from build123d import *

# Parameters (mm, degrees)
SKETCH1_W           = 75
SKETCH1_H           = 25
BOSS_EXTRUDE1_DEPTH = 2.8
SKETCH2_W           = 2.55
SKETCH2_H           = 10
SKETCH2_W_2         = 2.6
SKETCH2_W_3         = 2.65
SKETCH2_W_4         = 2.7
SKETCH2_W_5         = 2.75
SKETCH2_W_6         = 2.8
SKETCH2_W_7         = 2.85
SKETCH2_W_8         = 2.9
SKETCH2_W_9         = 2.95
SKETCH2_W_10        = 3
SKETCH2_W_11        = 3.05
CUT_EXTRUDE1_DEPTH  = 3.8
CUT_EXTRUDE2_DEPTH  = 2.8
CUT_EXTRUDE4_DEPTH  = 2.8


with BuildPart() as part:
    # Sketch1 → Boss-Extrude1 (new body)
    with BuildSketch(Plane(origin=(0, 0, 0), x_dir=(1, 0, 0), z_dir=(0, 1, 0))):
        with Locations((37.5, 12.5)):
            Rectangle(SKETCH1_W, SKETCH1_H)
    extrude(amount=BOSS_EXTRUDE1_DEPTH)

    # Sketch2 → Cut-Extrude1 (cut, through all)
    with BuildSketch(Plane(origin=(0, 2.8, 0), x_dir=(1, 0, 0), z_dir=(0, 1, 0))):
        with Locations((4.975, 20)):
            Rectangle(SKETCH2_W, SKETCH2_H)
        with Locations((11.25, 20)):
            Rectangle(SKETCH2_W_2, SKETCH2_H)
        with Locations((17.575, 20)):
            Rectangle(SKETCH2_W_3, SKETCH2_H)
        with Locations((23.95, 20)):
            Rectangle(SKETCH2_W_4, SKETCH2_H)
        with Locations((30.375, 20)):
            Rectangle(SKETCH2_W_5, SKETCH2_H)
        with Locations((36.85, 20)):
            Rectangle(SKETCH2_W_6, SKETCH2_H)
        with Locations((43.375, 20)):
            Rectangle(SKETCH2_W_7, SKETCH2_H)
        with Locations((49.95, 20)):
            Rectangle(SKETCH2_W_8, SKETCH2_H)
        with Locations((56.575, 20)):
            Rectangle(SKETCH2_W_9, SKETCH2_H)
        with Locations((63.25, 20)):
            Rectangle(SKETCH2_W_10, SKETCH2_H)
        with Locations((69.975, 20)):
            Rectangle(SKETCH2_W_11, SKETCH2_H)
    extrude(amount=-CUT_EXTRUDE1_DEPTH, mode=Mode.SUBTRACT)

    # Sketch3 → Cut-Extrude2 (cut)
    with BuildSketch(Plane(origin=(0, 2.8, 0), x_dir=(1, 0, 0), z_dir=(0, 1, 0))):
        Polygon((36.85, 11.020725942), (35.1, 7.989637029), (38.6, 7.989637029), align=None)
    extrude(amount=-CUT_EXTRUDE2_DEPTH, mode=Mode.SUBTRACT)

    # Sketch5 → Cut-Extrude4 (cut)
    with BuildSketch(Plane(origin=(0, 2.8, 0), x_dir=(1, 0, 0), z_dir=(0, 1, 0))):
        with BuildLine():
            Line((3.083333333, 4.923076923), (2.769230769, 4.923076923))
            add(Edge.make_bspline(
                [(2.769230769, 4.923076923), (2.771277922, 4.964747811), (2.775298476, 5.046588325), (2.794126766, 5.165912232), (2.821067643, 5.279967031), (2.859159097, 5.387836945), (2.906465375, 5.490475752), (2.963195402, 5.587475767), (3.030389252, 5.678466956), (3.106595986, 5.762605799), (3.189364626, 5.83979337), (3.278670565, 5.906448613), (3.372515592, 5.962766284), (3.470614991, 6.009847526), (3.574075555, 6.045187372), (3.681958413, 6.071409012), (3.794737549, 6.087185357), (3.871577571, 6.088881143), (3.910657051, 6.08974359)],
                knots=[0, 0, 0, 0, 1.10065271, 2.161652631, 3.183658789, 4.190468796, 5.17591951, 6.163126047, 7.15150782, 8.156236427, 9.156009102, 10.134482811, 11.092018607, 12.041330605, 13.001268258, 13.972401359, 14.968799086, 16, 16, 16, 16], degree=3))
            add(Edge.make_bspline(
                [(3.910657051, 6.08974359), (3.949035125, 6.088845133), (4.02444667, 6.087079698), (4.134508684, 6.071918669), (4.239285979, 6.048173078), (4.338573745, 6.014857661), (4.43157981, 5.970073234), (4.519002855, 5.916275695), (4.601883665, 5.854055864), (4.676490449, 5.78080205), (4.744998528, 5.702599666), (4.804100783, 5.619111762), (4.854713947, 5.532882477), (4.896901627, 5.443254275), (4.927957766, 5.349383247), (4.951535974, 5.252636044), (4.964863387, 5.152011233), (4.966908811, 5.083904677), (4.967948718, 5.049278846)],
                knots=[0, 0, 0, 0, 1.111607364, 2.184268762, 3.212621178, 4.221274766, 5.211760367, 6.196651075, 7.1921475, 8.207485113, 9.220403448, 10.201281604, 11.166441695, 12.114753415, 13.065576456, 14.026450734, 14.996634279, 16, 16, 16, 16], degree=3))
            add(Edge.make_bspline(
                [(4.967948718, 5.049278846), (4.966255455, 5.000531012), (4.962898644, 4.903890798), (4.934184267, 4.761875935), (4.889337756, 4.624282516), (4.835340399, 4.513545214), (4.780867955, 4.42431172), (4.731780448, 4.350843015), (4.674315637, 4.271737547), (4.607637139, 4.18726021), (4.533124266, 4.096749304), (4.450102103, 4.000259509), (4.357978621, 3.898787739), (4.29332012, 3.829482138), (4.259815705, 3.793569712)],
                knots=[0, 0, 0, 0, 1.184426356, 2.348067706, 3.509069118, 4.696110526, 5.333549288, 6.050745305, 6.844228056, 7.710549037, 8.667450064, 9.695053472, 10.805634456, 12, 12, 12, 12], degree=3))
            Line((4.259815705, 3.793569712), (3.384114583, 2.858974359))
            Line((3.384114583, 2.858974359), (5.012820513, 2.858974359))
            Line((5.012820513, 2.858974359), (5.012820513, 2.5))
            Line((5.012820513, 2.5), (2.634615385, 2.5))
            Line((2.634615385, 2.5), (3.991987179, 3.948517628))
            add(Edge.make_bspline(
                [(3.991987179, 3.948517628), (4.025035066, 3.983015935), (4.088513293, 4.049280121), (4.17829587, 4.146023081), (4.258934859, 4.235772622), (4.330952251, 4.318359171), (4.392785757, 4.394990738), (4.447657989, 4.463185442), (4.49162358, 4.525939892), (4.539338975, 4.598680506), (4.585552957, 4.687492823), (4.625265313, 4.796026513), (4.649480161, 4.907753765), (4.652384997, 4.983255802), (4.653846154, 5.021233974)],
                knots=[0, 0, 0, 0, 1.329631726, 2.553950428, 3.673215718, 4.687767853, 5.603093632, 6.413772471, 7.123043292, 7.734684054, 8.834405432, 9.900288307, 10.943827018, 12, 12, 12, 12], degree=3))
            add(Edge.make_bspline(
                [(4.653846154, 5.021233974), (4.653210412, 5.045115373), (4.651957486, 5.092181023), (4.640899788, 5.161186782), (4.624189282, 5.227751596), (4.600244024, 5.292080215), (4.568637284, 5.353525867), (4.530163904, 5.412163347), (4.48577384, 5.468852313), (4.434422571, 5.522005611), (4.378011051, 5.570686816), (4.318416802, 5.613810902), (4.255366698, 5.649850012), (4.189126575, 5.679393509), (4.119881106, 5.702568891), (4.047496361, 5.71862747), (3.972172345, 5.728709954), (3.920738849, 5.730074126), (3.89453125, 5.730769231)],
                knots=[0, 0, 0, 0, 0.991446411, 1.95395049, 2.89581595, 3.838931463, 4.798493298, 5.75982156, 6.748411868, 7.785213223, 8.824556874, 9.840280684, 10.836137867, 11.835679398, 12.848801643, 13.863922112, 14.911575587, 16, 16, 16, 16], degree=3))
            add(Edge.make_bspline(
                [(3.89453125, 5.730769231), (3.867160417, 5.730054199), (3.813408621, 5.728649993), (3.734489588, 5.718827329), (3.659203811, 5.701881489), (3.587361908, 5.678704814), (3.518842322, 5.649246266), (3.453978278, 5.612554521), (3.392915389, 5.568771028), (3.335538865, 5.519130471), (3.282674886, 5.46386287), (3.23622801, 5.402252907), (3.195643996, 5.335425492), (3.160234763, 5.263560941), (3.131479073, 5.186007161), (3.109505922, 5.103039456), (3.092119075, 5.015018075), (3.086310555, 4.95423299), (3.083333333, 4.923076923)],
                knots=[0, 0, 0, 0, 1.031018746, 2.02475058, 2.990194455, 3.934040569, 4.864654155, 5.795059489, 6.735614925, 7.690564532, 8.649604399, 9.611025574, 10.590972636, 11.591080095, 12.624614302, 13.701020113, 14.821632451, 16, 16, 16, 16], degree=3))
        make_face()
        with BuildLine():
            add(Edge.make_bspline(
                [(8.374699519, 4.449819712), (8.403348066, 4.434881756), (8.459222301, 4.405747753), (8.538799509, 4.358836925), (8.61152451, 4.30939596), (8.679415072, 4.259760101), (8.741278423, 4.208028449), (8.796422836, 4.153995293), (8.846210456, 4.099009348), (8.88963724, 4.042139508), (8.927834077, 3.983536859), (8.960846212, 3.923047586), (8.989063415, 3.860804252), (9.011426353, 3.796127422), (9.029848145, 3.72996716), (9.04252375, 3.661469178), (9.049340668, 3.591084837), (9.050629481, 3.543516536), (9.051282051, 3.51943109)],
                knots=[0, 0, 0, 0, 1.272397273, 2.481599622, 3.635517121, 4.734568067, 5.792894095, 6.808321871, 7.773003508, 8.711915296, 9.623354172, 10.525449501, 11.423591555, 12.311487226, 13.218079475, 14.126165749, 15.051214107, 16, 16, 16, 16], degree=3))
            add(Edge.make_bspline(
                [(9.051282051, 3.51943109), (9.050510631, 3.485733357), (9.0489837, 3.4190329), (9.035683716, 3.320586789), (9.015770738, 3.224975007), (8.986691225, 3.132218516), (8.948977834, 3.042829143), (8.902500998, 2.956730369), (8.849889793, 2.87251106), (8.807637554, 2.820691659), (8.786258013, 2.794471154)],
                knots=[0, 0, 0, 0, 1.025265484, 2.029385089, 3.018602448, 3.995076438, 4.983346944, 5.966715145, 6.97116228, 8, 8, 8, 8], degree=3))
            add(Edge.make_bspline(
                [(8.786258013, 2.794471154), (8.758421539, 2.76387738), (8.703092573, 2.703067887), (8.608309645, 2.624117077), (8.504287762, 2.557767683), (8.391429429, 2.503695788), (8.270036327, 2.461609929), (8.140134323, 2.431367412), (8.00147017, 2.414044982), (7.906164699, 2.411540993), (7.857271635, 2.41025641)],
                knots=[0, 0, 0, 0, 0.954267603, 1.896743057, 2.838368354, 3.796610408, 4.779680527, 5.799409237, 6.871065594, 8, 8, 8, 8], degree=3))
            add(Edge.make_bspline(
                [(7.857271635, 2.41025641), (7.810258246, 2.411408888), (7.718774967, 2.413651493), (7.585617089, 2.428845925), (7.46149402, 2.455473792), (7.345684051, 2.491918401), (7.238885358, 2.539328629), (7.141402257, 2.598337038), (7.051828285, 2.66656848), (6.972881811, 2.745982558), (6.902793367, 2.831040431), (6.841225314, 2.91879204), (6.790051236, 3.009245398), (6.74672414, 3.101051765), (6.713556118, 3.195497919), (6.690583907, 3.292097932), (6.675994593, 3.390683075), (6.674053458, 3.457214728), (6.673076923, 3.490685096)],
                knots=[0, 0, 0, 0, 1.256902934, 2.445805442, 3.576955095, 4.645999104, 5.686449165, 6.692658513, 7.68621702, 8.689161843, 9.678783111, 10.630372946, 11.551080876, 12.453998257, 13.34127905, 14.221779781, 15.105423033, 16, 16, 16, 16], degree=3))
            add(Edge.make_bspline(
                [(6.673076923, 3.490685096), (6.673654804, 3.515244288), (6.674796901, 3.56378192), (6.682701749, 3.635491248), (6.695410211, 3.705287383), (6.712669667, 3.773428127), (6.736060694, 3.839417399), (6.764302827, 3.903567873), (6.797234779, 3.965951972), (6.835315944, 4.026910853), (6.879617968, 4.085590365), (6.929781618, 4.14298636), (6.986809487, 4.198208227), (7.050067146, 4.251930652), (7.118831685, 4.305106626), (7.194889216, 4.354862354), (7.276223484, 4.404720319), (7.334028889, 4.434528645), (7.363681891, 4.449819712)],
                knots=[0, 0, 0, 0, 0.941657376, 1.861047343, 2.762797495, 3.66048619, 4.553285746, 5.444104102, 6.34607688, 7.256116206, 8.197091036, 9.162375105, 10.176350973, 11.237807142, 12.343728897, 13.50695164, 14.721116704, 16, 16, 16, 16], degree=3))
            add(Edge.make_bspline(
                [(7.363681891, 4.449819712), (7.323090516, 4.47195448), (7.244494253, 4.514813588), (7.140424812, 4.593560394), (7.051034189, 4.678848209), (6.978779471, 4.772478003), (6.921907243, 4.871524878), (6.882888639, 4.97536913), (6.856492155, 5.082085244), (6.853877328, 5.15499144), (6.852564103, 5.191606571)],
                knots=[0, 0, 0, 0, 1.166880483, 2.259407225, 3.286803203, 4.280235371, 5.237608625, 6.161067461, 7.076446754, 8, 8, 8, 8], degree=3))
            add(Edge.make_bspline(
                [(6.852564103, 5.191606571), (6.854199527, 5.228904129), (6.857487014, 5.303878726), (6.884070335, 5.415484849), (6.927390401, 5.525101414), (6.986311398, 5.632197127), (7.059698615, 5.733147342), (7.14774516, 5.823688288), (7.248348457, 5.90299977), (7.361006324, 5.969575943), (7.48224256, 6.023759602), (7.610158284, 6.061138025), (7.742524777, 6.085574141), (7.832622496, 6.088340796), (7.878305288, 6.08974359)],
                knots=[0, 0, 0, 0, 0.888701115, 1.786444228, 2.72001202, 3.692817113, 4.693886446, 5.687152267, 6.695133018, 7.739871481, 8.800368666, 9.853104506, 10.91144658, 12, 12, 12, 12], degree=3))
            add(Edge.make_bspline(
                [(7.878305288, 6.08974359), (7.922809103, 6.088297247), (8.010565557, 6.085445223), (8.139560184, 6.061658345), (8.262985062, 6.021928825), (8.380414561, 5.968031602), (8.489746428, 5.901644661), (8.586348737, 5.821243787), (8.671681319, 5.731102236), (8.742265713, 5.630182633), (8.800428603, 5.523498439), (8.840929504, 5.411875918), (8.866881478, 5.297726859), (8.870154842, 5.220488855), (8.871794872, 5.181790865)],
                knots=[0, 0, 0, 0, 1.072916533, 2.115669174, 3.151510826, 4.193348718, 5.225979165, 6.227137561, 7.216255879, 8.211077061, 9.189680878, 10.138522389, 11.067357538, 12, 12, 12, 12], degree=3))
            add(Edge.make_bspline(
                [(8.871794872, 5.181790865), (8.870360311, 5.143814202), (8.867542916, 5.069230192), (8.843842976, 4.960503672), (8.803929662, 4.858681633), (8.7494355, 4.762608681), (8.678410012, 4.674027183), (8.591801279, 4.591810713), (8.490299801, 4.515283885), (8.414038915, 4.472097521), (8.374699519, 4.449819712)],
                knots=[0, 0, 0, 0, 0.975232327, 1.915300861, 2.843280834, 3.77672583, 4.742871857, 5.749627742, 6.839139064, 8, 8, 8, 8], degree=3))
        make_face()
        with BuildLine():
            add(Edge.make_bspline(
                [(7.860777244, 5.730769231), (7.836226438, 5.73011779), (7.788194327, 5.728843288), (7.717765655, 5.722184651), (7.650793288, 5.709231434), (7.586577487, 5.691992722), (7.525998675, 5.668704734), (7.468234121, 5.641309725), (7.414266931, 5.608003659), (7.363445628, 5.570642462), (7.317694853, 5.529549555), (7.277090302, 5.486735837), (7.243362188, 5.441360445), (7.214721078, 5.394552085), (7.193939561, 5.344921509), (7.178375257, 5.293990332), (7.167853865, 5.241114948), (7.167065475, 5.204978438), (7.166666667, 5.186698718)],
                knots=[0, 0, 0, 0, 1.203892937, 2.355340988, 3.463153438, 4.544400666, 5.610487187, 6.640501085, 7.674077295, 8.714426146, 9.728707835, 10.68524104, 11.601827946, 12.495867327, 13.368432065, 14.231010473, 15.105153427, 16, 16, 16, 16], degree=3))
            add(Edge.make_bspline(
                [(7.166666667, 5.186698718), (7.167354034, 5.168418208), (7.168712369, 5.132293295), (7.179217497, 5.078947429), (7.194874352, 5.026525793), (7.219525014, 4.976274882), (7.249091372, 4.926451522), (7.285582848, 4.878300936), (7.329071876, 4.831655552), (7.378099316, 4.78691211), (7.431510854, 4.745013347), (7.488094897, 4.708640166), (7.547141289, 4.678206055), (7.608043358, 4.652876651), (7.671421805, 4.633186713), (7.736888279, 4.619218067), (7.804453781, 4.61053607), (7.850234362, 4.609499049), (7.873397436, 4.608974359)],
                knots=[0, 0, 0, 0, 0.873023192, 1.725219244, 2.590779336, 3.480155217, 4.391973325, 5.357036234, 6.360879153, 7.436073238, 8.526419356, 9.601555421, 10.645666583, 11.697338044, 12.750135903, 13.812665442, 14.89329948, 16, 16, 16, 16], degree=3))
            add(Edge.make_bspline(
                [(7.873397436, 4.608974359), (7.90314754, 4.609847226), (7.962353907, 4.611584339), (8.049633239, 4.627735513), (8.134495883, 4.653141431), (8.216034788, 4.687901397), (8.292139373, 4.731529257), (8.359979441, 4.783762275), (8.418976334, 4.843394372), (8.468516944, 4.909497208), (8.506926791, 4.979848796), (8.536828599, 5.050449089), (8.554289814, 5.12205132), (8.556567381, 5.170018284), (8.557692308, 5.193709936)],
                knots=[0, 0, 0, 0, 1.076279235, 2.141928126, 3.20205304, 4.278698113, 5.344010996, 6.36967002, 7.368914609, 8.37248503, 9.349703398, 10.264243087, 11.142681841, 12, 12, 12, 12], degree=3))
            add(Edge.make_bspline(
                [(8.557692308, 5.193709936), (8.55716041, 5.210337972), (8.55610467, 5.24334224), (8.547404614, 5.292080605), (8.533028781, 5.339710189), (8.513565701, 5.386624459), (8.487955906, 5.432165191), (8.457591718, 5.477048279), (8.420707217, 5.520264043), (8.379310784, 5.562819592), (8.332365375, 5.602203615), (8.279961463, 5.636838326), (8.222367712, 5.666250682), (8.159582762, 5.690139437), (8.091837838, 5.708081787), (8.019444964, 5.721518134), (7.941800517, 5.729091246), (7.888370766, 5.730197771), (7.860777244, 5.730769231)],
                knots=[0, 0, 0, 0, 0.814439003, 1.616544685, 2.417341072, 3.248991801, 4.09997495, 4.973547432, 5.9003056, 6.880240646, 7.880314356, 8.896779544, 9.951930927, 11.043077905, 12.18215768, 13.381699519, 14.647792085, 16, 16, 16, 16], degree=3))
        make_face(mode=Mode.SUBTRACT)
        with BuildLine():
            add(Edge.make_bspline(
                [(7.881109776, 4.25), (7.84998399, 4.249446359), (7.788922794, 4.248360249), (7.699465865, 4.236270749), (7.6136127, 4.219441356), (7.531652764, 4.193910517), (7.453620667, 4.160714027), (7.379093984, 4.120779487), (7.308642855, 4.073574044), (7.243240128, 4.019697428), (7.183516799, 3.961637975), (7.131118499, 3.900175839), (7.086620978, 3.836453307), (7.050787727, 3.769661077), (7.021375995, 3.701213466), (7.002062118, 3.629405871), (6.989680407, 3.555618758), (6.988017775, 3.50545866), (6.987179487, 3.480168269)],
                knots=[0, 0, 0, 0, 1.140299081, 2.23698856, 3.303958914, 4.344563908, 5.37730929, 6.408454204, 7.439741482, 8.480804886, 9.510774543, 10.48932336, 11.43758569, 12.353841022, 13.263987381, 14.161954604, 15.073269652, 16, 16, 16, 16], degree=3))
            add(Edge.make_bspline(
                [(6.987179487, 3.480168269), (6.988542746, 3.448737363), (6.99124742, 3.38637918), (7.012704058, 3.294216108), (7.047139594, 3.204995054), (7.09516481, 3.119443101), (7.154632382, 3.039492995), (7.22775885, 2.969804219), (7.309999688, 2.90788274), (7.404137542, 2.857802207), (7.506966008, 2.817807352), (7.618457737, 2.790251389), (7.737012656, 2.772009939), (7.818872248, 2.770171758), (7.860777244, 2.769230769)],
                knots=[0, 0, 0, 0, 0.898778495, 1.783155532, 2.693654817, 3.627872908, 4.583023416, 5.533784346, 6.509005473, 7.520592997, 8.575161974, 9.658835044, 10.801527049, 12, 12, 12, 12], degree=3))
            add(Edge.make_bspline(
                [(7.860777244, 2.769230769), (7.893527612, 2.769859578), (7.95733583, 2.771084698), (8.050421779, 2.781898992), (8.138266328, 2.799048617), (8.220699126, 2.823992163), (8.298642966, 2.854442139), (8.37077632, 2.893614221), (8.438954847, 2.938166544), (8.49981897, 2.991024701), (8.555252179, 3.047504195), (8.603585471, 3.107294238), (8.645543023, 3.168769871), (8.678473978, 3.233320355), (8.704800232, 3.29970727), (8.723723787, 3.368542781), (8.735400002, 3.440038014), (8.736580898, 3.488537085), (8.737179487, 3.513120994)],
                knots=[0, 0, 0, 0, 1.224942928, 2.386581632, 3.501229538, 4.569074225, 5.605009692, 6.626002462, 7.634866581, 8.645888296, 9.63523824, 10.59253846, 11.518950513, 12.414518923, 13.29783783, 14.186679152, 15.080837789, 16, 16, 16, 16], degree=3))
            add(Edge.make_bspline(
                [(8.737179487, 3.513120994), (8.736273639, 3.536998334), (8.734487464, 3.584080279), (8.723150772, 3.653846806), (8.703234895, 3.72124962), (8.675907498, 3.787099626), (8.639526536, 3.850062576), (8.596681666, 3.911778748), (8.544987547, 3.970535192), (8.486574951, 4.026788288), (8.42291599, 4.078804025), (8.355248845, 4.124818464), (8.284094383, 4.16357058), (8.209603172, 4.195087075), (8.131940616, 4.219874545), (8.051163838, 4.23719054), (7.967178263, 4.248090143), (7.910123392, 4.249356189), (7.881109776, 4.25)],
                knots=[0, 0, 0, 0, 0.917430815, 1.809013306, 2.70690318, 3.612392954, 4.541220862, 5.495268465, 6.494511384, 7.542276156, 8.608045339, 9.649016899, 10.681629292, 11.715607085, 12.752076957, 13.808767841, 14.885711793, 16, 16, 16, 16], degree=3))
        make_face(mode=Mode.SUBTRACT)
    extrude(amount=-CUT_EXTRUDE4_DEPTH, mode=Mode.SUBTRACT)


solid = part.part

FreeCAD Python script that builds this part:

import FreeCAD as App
import Part
import Sketcher
from FreeCAD import Vector
Q = App.Units.Quantity


def add_polygon(sketch, points):
    """Adds a closed chain of lines whose ends are joined by coincident constraints."""
    first, n = sketch.GeometryCount, len(points)
    for a, b in zip(points, points[1:] + points[:1]):
        sketch.addGeometry(Part.LineSegment(App.Vector(*a, 0), App.Vector(*b, 0)), False)
    for i in range(n):
        sketch.addConstraint(Sketcher.Constraint("Coincident", first + i, 2, first + (i + 1) % n, 1))

doc = App.newDocument("Part")
body = doc.addObject("PartDesign::Body", "Body")
body.AllowCompound = True

# Sketch on XZ plane
sketch1 = body.newObject("Sketcher::SketchObject", "Sketch")
sketch1.AttachmentSupport = (doc.getObject("XZ_Plane"), [""])
sketch1.MapMode = "FlatFace"
add_polygon(sketch1, [(0, -25), (0, 0), (75, 0), (75, -25)])  # lines 0-3
sketch1.addConstraint([
    Sketcher.Constraint("Vertical", 0),
    Sketcher.Constraint("Horizontal", 1),
    Sketcher.Constraint("Vertical", 2),
    Sketcher.Constraint("Horizontal", 3),
    Sketcher.Constraint("Coincident", 0, 2, -1, 1),
    Sketcher.Constraint("DistanceX", 1, 1, 1, 2, Q("75 mm")),
    Sketcher.Constraint("DistanceY", 0, 1, 0, 2, Q("25 mm")),
])
pad1 = body.newObject("PartDesign::Pad", "Pad")
pad1.Profile = sketch1
pad1.Length = 2.8
pad1.Reversed = True

# Sketch on XZ plane
sketch2 = body.newObject("Sketcher::SketchObject", "Sketch001")
sketch2.AttachmentSupport = (doc.getObject("XZ_Plane"), [""])
sketch2.MapMode = "FlatFace"
sketch2.AttachmentOffset = App.Placement(Vector(0, 0, -2.8), App.Rotation())
add_polygon(sketch2, [(3.7, -25), (3.7, -15), (6.2, -15), (6.2, -25)])  # lines 0-3
add_polygon(sketch2, [(9.9, -25), (9.9, -15), (12.6, -15), (12.6, -25)])  # lines 4-7
add_polygon(sketch2, [(16.2, -25), (16.2, -15), (18.9, -15), (18.9, -25)])  # lines 8-11
add_polygon(sketch2, [(22.6, -25), (22.6, -15), (25.3, -15), (25.3, -25)])  # lines 12-15
add_polygon(sketch2, [(29, -25), (29, -15), (31.8, -15), (31.8, -25)])  # lines 16-19
add_polygon(sketch2, [(35.5, -25), (35.5, -15), (38.2, -15), (38.2, -25)])  # lines 20-23
add_polygon(sketch2, [(42, -25), (42, -15), (44.8, -15), (44.8, -25)])  # lines 24-27
add_polygon(sketch2, [(48.5, -25), (48.5, -15), (51.4, -15), (51.4, -25)])  # lines 28-31
add_polygon(sketch2, [(55.1, -25), (55.1, -15), (58, -15), (58, -25)])  # lines 32-35
add_polygon(sketch2, [(61.8, -25), (61.8, -15), (64.8, -15), (64.8, -25)])  # lines 36-39
add_polygon(sketch2, [(68.5, -25), (68.5, -15), (71.5, -15), (71.5, -25)])  # lines 40-43
sketch2.addConstraint([
    Sketcher.Constraint("Vertical", 0),
    Sketcher.Constraint("Horizontal", 1),
    Sketcher.Constraint("Vertical", 2),
    Sketcher.Constraint("Horizontal", 3),
    Sketcher.Constraint("Vertical", 4),
    Sketcher.Constraint("Horizontal", 5),
    Sketcher.Constraint("Vertical", 6),
    Sketcher.Constraint("Horizontal", 7),
    Sketcher.Constraint("Vertical", 8),
    Sketcher.Constraint("Horizontal", 9),
    Sketcher.Constraint("Vertical", 10),
    Sketcher.Constraint("Horizontal", 11),
    Sketcher.Constraint("Vertical", 12),
    Sketcher.Constraint("Horizontal", 13),
    Sketcher.Constraint("Vertical", 14),
    Sketcher.Constraint("Horizontal", 15),
    Sketcher.Constraint("Vertical", 16),
    Sketcher.Constraint("Horizontal", 17),
    Sketcher.Constraint("Vertical", 18),
    Sketcher.Constraint("Horizontal", 19),
    Sketcher.Constraint("Vertical", 20),
    Sketcher.Constraint("Horizontal", 21),
    Sketcher.Constraint("Vertical", 22),
    Sketcher.Constraint("Horizontal", 23),
    Sketcher.Constraint("Vertical", 24),
    Sketcher.Constraint("Horizontal", 25),
    Sketcher.Constraint("Vertical", 26),
    Sketcher.Constraint("Horizontal", 27),
    Sketcher.Constraint("Vertical", 28),
    Sketcher.Constraint("Horizontal", 29),
    Sketcher.Constraint("Vertical", 30),
    Sketcher.Constraint("Horizontal", 31),
    Sketcher.Constraint("Vertical", 32),
    Sketcher.Constraint("Horizontal", 33),
    Sketcher.Constraint("Vertical", 34),
    Sketcher.Constraint("Horizontal", 35),
    Sketcher.Constraint("Vertical", 36),
    Sketcher.Constraint("Horizontal", 37),
    Sketcher.Constraint("Vertical", 38),
    Sketcher.Constraint("Horizontal", 39),
    Sketcher.Constraint("Vertical", 40),
    Sketcher.Constraint("Horizontal", 41),
    Sketcher.Constraint("Vertical", 42),
    Sketcher.Constraint("Horizontal", 43),
    Sketcher.Constraint("Horizontal", 1, 2, 4, 2),
    Sketcher.Constraint("Horizontal", 3, 2, 6, 2),
    Sketcher.Constraint("Horizontal", 5, 2, 8, 2),
    Sketcher.Constraint("Horizontal", 7, 2, 10, 2),
    Sketcher.Constraint("Horizontal", 9, 2, 12, 2),
    Sketcher.Constraint("Horizontal", 11, 2, 14, 2),
    Sketcher.Constraint("Horizontal", 13, 2, 16, 2),
    Sketcher.Constraint("Horizontal", 15, 2, 18, 2),
    Sketcher.Constraint("Horizontal", 17, 2, 20, 2),
    Sketcher.Constraint("Horizontal", 19, 2, 22, 2),
    Sketcher.Constraint("Horizontal", 21, 2, 24, 2),
    Sketcher.Constraint("Horizontal", 23, 2, 26, 2),
    Sketcher.Constraint("Horizontal", 25, 2, 28, 2),
    Sketcher.Constraint("Horizontal", 27, 2, 30, 2),
    Sketcher.Constraint("Horizontal", 29, 2, 32, 2),
    Sketcher.Constraint("Horizontal", 31, 2, 34, 2),
    Sketcher.Constraint("Horizontal", 33, 2, 36, 2),
    Sketcher.Constraint("Horizontal", 35, 2, 38, 2),
    Sketcher.Constraint("Horizontal", 37, 2, 40, 2),
    Sketcher.Constraint("Horizontal", 39, 2, 42, 2),
    Sketcher.Constraint("DistanceX", 37, 1, 37, 2, Q("3 mm")),
    Sketcher.Constraint("DistanceY", 0, 1, 0, 2, Q("10 mm")),
    Sketcher.Constraint("DistanceX", 5, 1, 5, 2, Q("2.6 mm")),
    Sketcher.Constraint("DistanceX", 13, 1, 13, 2, Q("2.7 mm")),
    Sketcher.Constraint("DistanceX", 21, 1, 21, 2, Q("2.8 mm")),
    Sketcher.Constraint("DistanceX", 29, 1, 29, 2, Q("2.9 mm")),
    Sketcher.Constraint("DistanceY", 0, 2, -1, 1, Q("15 mm")),
    Sketcher.Constraint("DistanceX", -1, 1, 16, 2, Q("29 mm")),
    Sketcher.Constraint("DistanceX", 1, 2, 8, 2, Q("10 mm")),
    Sketcher.Constraint("DistanceX", 1, 1, 1, 2, Q("2.55 mm")),
    Sketcher.Constraint("DistanceX", 9, 1, 9, 2, Q("2.65 mm")),
    Sketcher.Constraint("DistanceX", 17, 1, 17, 2, Q("2.75 mm")),
    Sketcher.Constraint("DistanceX", 25, 1, 25, 2, Q("2.85 mm")),
    Sketcher.Constraint("DistanceX", 33, 1, 33, 2, Q("2.95 mm")),
    Sketcher.Constraint("DistanceX", 41, 1, 41, 2, Q("3.05 mm")),
    Sketcher.Constraint("DistanceX", -1, 1, 0, 2, Q("3.7 mm")),
    Sketcher.Constraint("DistanceX", -1, 1, 12, 2, Q("22.6 mm")),
    Sketcher.Constraint("DistanceX", -1, 1, 25, 2, Q("44.8 mm")),
    Sketcher.Constraint("DistanceX", -1, 1, 28, 2, Q("48.5 mm")),
    Sketcher.Constraint("DistanceX", -1, 1, 32, 2, Q("55.1 mm")),
    Sketcher.Constraint("DistanceX", -1, 1, 41, 2, Q("71.5 mm")),
    Sketcher.Constraint("DistanceX", 1, 2, 4, 2, Q("3.7 mm")),
    Sketcher.Constraint("DistanceX", 17, 2, 20, 2, Q("3.7 mm")),
    Sketcher.Constraint("DistanceX", 33, 2, 36, 2, Q("3.7 mm")),
])
pocket1 = body.newObject("PartDesign::Pocket", "Pocket")
pocket1.Profile = sketch2
pocket1.Type = "ThroughAll"
pocket1.Reversed = True

# Sketch on XZ plane
sketch3 = body.newObject("Sketcher::SketchObject", "Sketch002")
sketch3.AttachmentSupport = (doc.getObject("XZ_Plane"), [""])
sketch3.MapMode = "FlatFace"
sketch3.AttachmentOffset = App.Placement(Vector(0, 0, -2.8), App.Rotation())
add_polygon(sketch3, [(36.9, -11), (35.1, -8), (38.6, -8)])  # lines 0-2
sketch3.addConstraint([
    Sketcher.Constraint("Horizontal", 1),
    Sketcher.Constraint("Equal", 0, 2),
    Sketcher.Constraint("Angle", 0, Q("120 deg")),
    Sketcher.Constraint("DistanceX", 1, 1, 1, 2, Q("3.5 mm")),
    Sketcher.Constraint("DistanceX", -1, 1, 0, 2, Q("35.1 mm")),
    Sketcher.Constraint("DistanceY", 0, 2, -1, 1, Q("7.989637 mm")),
])
pocket2 = body.newObject("PartDesign::Pocket", "Pocket001")
pocket2.Profile = sketch3
pocket2.Length = 2.8
pocket2.Reversed = True

# Sketch on XZ plane
sketch4 = body.newObject("Sketcher::SketchObject", "Sketch003")
sketch4.AttachmentSupport = (doc.getObject("XZ_Plane"), [""])
sketch4.MapMode = "FlatFace"
sketch4.AttachmentOffset = App.Placement(Vector(0, 0, -2.8), App.Rotation())
sketch4.addGeometry([
    Part.LineSegment(Vector(2.769231, -4.923077, 0), Vector(3.083333, -4.923077, 0)),  # 0
    Part.BSplineCurve([Vector(3.894531, -5.730769, 0), Vector(3.86716, -5.730054, 0), Vector(3.813409, -5.72865, 0), Vector(3.73449, -5.718827, 0), Vector(3.659204, -5.701881, 0), Vector(3.587362, -5.678705, 0), Vector(3.518842, -5.649246, 0), Vector(3.453978, -5.612555, 0), Vector(3.392915, -5.568771, 0), Vector(3.335539, -5.51913, 0), Vector(3.282675, -5.463863, 0), Vector(3.236228, -5.402253, 0), Vector(3.195644, -5.335425, 0), Vector(3.160235, -5.263561, 0), Vector(3.131479, -5.186007, 0), Vector(3.109506, -5.103039, 0), Vector(3.092119, -5.015018, 0), Vector(3.086311, -4.954233, 0), Vector(3.083333, -4.923077, 0)], [4, 1, 1, 1, 1, 1, 1, 1, 1, 1, 1, 1, 1, 1, 1, 1, 4], [0, 1.031018746, 2.02475058, 2.990194455, 3.934040569, 4.864654155, 5.795059489, 6.735614925, 7.690564532, 8.649604399, 9.611025574, 10.590972636, 11.591080095, 12.624614302, 13.701020113, 14.821632451, 16], False, 3, [1, 1, 1, 1, 1, 1, 1, 1, 1, 1, 1, 1, 1, 1, 1, 1, 1, 1, 1], False),  # 1
    Part.BSplineCurve([Vector(4.653846, -5.021234, 0), Vector(4.65321, -5.045115, 0), Vector(4.651957, -5.092181, 0), Vector(4.6409, -5.161187, 0), Vector(4.624189, -5.227752, 0), Vector(4.600244, -5.29208, 0), Vector(4.568637, -5.353526, 0), Vector(4.530164, -5.412163, 0), Vector(4.485774, -5.468852, 0), Vector(4.434423, -5.522006, 0), Vector(4.378011, -5.570687, 0), Vector(4.318417, -5.613811, 0), Vector(4.255367, -5.64985, 0), Vector(4.189127, -5.679394, 0), Vector(4.119881, -5.702569, 0), Vector(4.047496, -5.718627, 0), Vector(3.972172, -5.72871, 0), Vector(3.920739, -5.730074, 0), Vector(3.894531, -5.730769, 0)], [4, 1, 1, 1, 1, 1, 1, 1, 1, 1, 1, 1, 1, 1, 1, 1, 4], [0, 0.991446411, 1.95395049, 2.89581595, 3.838931463, 4.798493298, 5.75982156, 6.748411868, 7.785213223, 8.824556874, 9.840280684, 10.836137867, 11.835679398, 12.848801643, 13.863922112, 14.911575587, 16], False, 3, [1, 1, 1, 1, 1, 1, 1, 1, 1, 1, 1, 1, 1, 1, 1, 1, 1, 1, 1], False),  # 2
    Part.BSplineCurve([Vector(3.991987, -3.948518, 0), Vector(4.025035, -3.983016, 0), Vector(4.088513, -4.04928, 0), Vector(4.178296, -4.146023, 0), Vector(4.258935, -4.235773, 0), Vector(4.330952, -4.318359, 0), Vector(4.392786, -4.394991, 0), Vector(4.447658, -4.463185, 0), Vector(4.491624, -4.52594, 0), Vector(4.539339, -4.598681, 0), Vector(4.585553, -4.687493, 0), Vector(4.625265, -4.796027, 0), Vector(4.64948, -4.907754, 0), Vector(4.652385, -4.983256, 0), Vector(4.653846, -5.021234, 0)], [4, 1, 1, 1, 1, 1, 1, 1, 1, 1, 1, 1, 4], [0, 1.329631726, 2.553950428, 3.673215718, 4.687767853, 5.603093632, 6.413772471, 7.123043292, 7.734684054, 8.834405432, 9.900288307, 10.943827018, 12], False, 3, [1, 1, 1, 1, 1, 1, 1, 1, 1, 1, 1, 1, 1, 1, 1], False),  # 3
    Part.LineSegment(Vector(3.991987, -3.948518, 0), Vector(2.634615, -2.5, 0)),  # 4
    Part.LineSegment(Vector(2.634615, -2.5, 0), Vector(5.012821, -2.5, 0)),  # 5
    Part.LineSegment(Vector(5.012821, -2.5, 0), Vector(5.012821, -2.858974, 0)),  # 6
    Part.LineSegment(Vector(5.012821, -2.858974, 0), Vector(3.384115, -2.858974, 0)),  # 7
    Part.LineSegment(Vector(3.384115, -2.858974, 0), Vector(4.259816, -3.79357, 0)),  # 8
    Part.BSplineCurve([Vector(4.967949, -5.049279, 0), Vector(4.966255, -5.000531, 0), Vector(4.962899, -4.903891, 0), Vector(4.934184, -4.761876, 0), Vector(4.889338, -4.624283, 0), Vector(4.83534, -4.513545, 0), Vector(4.780868, -4.424312, 0), Vector(4.73178, -4.350843, 0), Vector(4.674316, -4.271738, 0), Vector(4.607637, -4.18726, 0), Vector(4.533124, -4.096749, 0), Vector(4.450102, -4.00026, 0), Vector(4.357979, -3.898788, 0), Vector(4.29332, -3.829482, 0), Vector(4.259816, -3.79357, 0)], [4, 1, 1, 1, 1, 1, 1, 1, 1, 1, 1, 1, 4], [0, 1.184426356, 2.348067706, 3.509069118, 4.696110526, 5.333549288, 6.050745305, 6.844228056, 7.710549037, 8.667450064, 9.695053472, 10.805634456, 12], False, 3, [1, 1, 1, 1, 1, 1, 1, 1, 1, 1, 1, 1, 1, 1, 1], False),  # 9
    Part.BSplineCurve([Vector(3.910657, -6.089744, 0), Vector(3.949035, -6.088845, 0), Vector(4.024447, -6.08708, 0), Vector(4.134509, -6.071919, 0), Vector(4.239286, -6.048173, 0), Vector(4.338574, -6.014858, 0), Vector(4.43158, -5.970073, 0), Vector(4.519003, -5.916276, 0), Vector(4.601884, -5.854056, 0), Vector(4.67649, -5.780802, 0), Vector(4.744999, -5.7026, 0), Vector(4.804101, -5.619112, 0), Vector(4.854714, -5.532882, 0), Vector(4.896902, -5.443254, 0), Vector(4.927958, -5.349383, 0), Vector(4.951536, -5.252636, 0), Vector(4.964863, -5.152011, 0), Vector(4.966909, -5.083905, 0), Vector(4.967949, -5.049279, 0)], [4, 1, 1, 1, 1, 1, 1, 1, 1, 1, 1, 1, 1, 1, 1, 1, 4], [0, 1.111607364, 2.184268762, 3.212621178, 4.221274766, 5.211760367, 6.196651075, 7.1921475, 8.207485113, 9.220403448, 10.201281604, 11.166441695, 12.114753415, 13.065576456, 14.026450734, 14.996634279, 16], False, 3, [1, 1, 1, 1, 1, 1, 1, 1, 1, 1, 1, 1, 1, 1, 1, 1, 1, 1, 1], False),  # 10
    Part.BSplineCurve([Vector(2.769231, -4.923077, 0), Vector(2.771278, -4.964748, 0), Vector(2.775298, -5.046588, 0), Vector(2.794127, -5.165912, 0), Vector(2.821068, -5.279967, 0), Vector(2.859159, -5.387837, 0), Vector(2.906465, -5.490476, 0), Vector(2.963195, -5.587476, 0), Vector(3.030389, -5.678467, 0), Vector(3.106596, -5.762606, 0), Vector(3.189365, -5.839793, 0), Vector(3.278671, -5.906449, 0), Vector(3.372516, -5.962766, 0), Vector(3.470615, -6.009848, 0), Vector(3.574076, -6.045187, 0), Vector(3.681958, -6.071409, 0), Vector(3.794738, -6.087185, 0), Vector(3.871578, -6.088881, 0), Vector(3.910657, -6.089744, 0)], [4, 1, 1, 1, 1, 1, 1, 1, 1, 1, 1, 1, 1, 1, 1, 1, 4], [0, 1.10065271, 2.161652631, 3.183658789, 4.190468796, 5.17591951, 6.163126047, 7.15150782, 8.156236427, 9.156009102, 10.134482811, 11.092018607, 12.041330605, 13.001268258, 13.972401359, 14.968799086, 16], False, 3, [1, 1, 1, 1, 1, 1, 1, 1, 1, 1, 1, 1, 1, 1, 1, 1, 1, 1, 1], False),  # 11
    Part.BSplineCurve([Vector(8.3747, -4.44982, 0), Vector(8.403348, -4.434882, 0), Vector(8.459222, -4.405748, 0), Vector(8.5388, -4.358837, 0), Vector(8.611525, -4.309396, 0), Vector(8.679415, -4.25976, 0), Vector(8.741278, -4.208028, 0), Vector(8.796423, -4.153995, 0), Vector(8.84621, -4.099009, 0), Vector(8.889637, -4.04214, 0), Vector(8.927834, -3.983537, 0), Vector(8.960846, -3.923048, 0), Vector(8.989063, -3.860804, 0), Vector(9.011426, -3.796127, 0), Vector(9.029848, -3.729967, 0), Vector(9.042524, -3.661469, 0), Vector(9.049341, -3.591085, 0), Vector(9.050629, -3.543517, 0), Vector(9.051282, -3.519431, 0)], [4, 1, 1, 1, 1, 1, 1, 1, 1, 1, 1, 1, 1, 1, 1, 1, 4], [0, 1.272397273, 2.481599622, 3.635517121, 4.734568067, 5.792894095, 6.808321871, 7.773003508, 8.711915296, 9.623354172, 10.525449501, 11.423591555, 12.311487226, 13.218079475, 14.126165749, 15.051214107, 16], False, 3, [1, 1, 1, 1, 1, 1, 1, 1, 1, 1, 1, 1, 1, 1, 1, 1, 1, 1, 1], False),  # 12
    Part.BSplineCurve([Vector(8.871795, -5.181791, 0), Vector(8.87036, -5.143814, 0), Vector(8.867543, -5.06923, 0), Vector(8.843843, -4.960504, 0), Vector(8.80393, -4.858682, 0), Vector(8.749436, -4.762609, 0), Vector(8.67841, -4.674027, 0), Vector(8.591801, -4.591811, 0), Vector(8.4903, -4.515284, 0), Vector(8.414039, -4.472098, 0), Vector(8.3747, -4.44982, 0)], [4, 1, 1, 1, 1, 1, 1, 1, 4], [0, 0.975232327, 1.915300861, 2.843280834, 3.77672583, 4.742871857, 5.749627742, 6.839139064, 8], False, 3, [1, 1, 1, 1, 1, 1, 1, 1, 1, 1, 1], False),  # 13
    Part.BSplineCurve([Vector(7.878305, -6.089744, 0), Vector(7.922809, -6.088297, 0), Vector(8.010566, -6.085445, 0), Vector(8.13956, -6.061658, 0), Vector(8.262985, -6.021929, 0), Vector(8.380415, -5.968032, 0), Vector(8.489746, -5.901645, 0), Vector(8.586349, -5.821244, 0), Vector(8.671681, -5.731102, 0), Vector(8.742266, -5.630183, 0), Vector(8.800429, -5.523498, 0), Vector(8.84093, -5.411876, 0), Vector(8.866881, -5.297727, 0), Vector(8.870155, -5.220489, 0), Vector(8.871795, -5.181791, 0)], [4, 1, 1, 1, 1, 1, 1, 1, 1, 1, 1, 1, 4], [0, 1.072916533, 2.115669174, 3.151510826, 4.193348718, 5.225979165, 6.227137561, 7.216255879, 8.211077061, 9.189680878, 10.138522389, 11.067357538, 12], False, 3, [1, 1, 1, 1, 1, 1, 1, 1, 1, 1, 1, 1, 1, 1, 1], False),  # 14
    Part.BSplineCurve([Vector(6.852564, -5.191607, 0), Vector(6.8542, -5.228904, 0), Vector(6.857487, -5.303879, 0), Vector(6.88407, -5.415485, 0), Vector(6.92739, -5.525101, 0), Vector(6.986311, -5.632197, 0), Vector(7.059699, -5.733147, 0), Vector(7.147745, -5.823688, 0), Vector(7.248348, -5.903, 0), Vector(7.361006, -5.969576, 0), Vector(7.482243, -6.02376, 0), Vector(7.610158, -6.061138, 0), Vector(7.742525, -6.085574, 0), Vector(7.832622, -6.088341, 0), Vector(7.878305, -6.089744, 0)], [4, 1, 1, 1, 1, 1, 1, 1, 1, 1, 1, 1, 4], [0, 0.888701115, 1.786444228, 2.72001202, 3.692817113, 4.693886446, 5.687152267, 6.695133018, 7.739871481, 8.800368666, 9.853104506, 10.91144658, 12], False, 3, [1, 1, 1, 1, 1, 1, 1, 1, 1, 1, 1, 1, 1, 1, 1], False),  # 15
    Part.BSplineCurve([Vector(7.363682, -4.44982, 0), Vector(7.323091, -4.471954, 0), Vector(7.244494, -4.514814, 0), Vector(7.140425, -4.59356, 0), Vector(7.051034, -4.678848, 0), Vector(6.978779, -4.772478, 0), Vector(6.921907, -4.871525, 0), Vector(6.882889, -4.975369, 0), Vector(6.856492, -5.082085, 0), Vector(6.853877, -5.154991, 0), Vector(6.852564, -5.191607, 0)], [4, 1, 1, 1, 1, 1, 1, 1, 4], [0, 1.166880483, 2.259407225, 3.286803203, 4.280235371, 5.237608625, 6.161067461, 7.076446754, 8], False, 3, [1, 1, 1, 1, 1, 1, 1, 1, 1, 1, 1], False),  # 16
    Part.BSplineCurve([Vector(6.673077, -3.490685, 0), Vector(6.673655, -3.515244, 0), Vector(6.674797, -3.563782, 0), Vector(6.682702, -3.635491, 0), Vector(6.69541, -3.705287, 0), Vector(6.71267, -3.773428, 0), Vector(6.736061, -3.839417, 0), Vector(6.764303, -3.903568, 0), Vector(6.797235, -3.965952, 0), Vector(6.835316, -4.026911, 0), Vector(6.879618, -4.08559, 0), Vector(6.929782, -4.142986, 0), Vector(6.986809, -4.198208, 0), Vector(7.050067, -4.251931, 0), Vector(7.118832, -4.305107, 0), Vector(7.194889, -4.354862, 0), Vector(7.276223, -4.40472, 0), Vector(7.334029, -4.434529, 0), Vector(7.363682, -4.44982, 0)], [4, 1, 1, 1, 1, 1, 1, 1, 1, 1, 1, 1, 1, 1, 1, 1, 4], [0, 0.941657376, 1.861047343, 2.762797495, 3.66048619, 4.553285746, 5.444104102, 6.34607688, 7.256116206, 8.197091036, 9.162375105, 10.176350973, 11.237807142, 12.343728897, 13.50695164, 14.721116704, 16], False, 3, [1, 1, 1, 1, 1, 1, 1, 1, 1, 1, 1, 1, 1, 1, 1, 1, 1, 1, 1], False),  # 17
    Part.BSplineCurve([Vector(7.857272, -2.410256, 0), Vector(7.810258, -2.411409, 0), Vector(7.718775, -2.413651, 0), Vector(7.585617, -2.428846, 0), Vector(7.461494, -2.455474, 0), Vector(7.345684, -2.491918, 0), Vector(7.238885, -2.539329, 0), Vector(7.141402, -2.598337, 0), Vector(7.051828, -2.666568, 0), Vector(6.972882, -2.745983, 0), Vector(6.902793, -2.83104, 0), Vector(6.841225, -2.918792, 0), Vector(6.790051, -3.009245, 0), Vector(6.746724, -3.101052, 0), Vector(6.713556, -3.195498, 0), Vector(6.690584, -3.292098, 0), Vector(6.675995, -3.390683, 0), Vector(6.674053, -3.457215, 0), Vector(6.673077, -3.490685, 0)], [4, 1, 1, 1, 1, 1, 1, 1, 1, 1, 1, 1, 1, 1, 1, 1, 4], [0, 1.256902934, 2.445805442, 3.576955095, 4.645999104, 5.686449165, 6.692658513, 7.68621702, 8.689161843, 9.678783111, 10.630372946, 11.551080876, 12.453998257, 13.34127905, 14.221779781, 15.105423033, 16], False, 3, [1, 1, 1, 1, 1, 1, 1, 1, 1, 1, 1, 1, 1, 1, 1, 1, 1, 1, 1], False),  # 18
    Part.BSplineCurve([Vector(8.786258, -2.794471, 0), Vector(8.758422, -2.763877, 0), Vector(8.703093, -2.703068, 0), Vector(8.60831, -2.624117, 0), Vector(8.504288, -2.557768, 0), Vector(8.391429, -2.503696, 0), Vector(8.270036, -2.46161, 0), Vector(8.140134, -2.431367, 0), Vector(8.00147, -2.414045, 0), Vector(7.906165, -2.411541, 0), Vector(7.857272, -2.410256, 0)], [4, 1, 1, 1, 1, 1, 1, 1, 4], [0, 0.954267603, 1.896743057, 2.838368354, 3.796610408, 4.779680527, 5.799409237, 6.871065594, 8], False, 3, [1, 1, 1, 1, 1, 1, 1, 1, 1, 1, 1], False),  # 19
    Part.BSplineCurve([Vector(9.051282, -3.519431, 0), Vector(9.050511, -3.485733, 0), Vector(9.048984, -3.419033, 0), Vector(9.035684, -3.320587, 0), Vector(9.015771, -3.224975, 0), Vector(8.986691, -3.132219, 0), Vector(8.948978, -3.042829, 0), Vector(8.902501, -2.95673, 0), Vector(8.84989, -2.872511, 0), Vector(8.807638, -2.820692, 0), Vector(8.786258, -2.794471, 0)], [4, 1, 1, 1, 1, 1, 1, 1, 4], [0, 1.025265484, 2.029385089, 3.018602448, 3.995076438, 4.983346944, 5.966715145, 6.97116228, 8], False, 3, [1, 1, 1, 1, 1, 1, 1, 1, 1, 1, 1], False),  # 20
    Part.BSplineCurve([Vector(8.737179, -3.513121, 0), Vector(8.736274, -3.536998, 0), Vector(8.734487, -3.58408, 0), Vector(8.723151, -3.653847, 0), Vector(8.703235, -3.72125, 0), Vector(8.675907, -3.7871, 0), Vector(8.639527, -3.850063, 0), Vector(8.596682, -3.911779, 0), Vector(8.544988, -3.970535, 0), Vector(8.486575, -4.026788, 0), Vector(8.422916, -4.078804, 0), Vector(8.355249, -4.124818, 0), Vector(8.284094, -4.163571, 0), Vector(8.209603, -4.195087, 0), Vector(8.131941, -4.219875, 0), Vector(8.051164, -4.237191, 0), Vector(7.967178, -4.24809, 0), Vector(7.910123, -4.249356, 0), Vector(7.88111, -4.25, 0)], [4, 1, 1, 1, 1, 1, 1, 1, 1, 1, 1, 1, 1, 1, 1, 1, 4], [0, 0.917430815, 1.809013306, 2.70690318, 3.612392954, 4.541220862, 5.495268465, 6.494511384, 7.542276156, 8.608045339, 9.649016899, 10.681629292, 11.715607085, 12.752076957, 13.808767841, 14.885711793, 16], False, 3, [1, 1, 1, 1, 1, 1, 1, 1, 1, 1, 1, 1, 1, 1, 1, 1, 1, 1, 1], False),  # 21
    Part.BSplineCurve([Vector(7.860777, -2.769231, 0), Vector(7.893528, -2.76986, 0), Vector(7.957336, -2.771085, 0), Vector(8.050422, -2.781899, 0), Vector(8.138266, -2.799049, 0), Vector(8.220699, -2.823992, 0), Vector(8.298643, -2.854442, 0), Vector(8.370776, -2.893614, 0), Vector(8.438955, -2.938167, 0), Vector(8.499819, -2.991025, 0), Vector(8.555252, -3.047504, 0), Vector(8.603585, -3.107294, 0), Vector(8.645543, -3.16877, 0), Vector(8.678474, -3.23332, 0), Vector(8.7048, -3.299707, 0), Vector(8.723724, -3.368543, 0), Vector(8.7354, -3.440038, 0), Vector(8.736581, -3.488537, 0), Vector(8.737179, -3.513121, 0)], [4, 1, 1, 1, 1, 1, 1, 1, 1, 1, 1, 1, 1, 1, 1, 1, 4], [0, 1.224942928, 2.386581632, 3.501229538, 4.569074225, 5.605009692, 6.626002462, 7.634866581, 8.645888296, 9.63523824, 10.59253846, 11.518950513, 12.414518923, 13.29783783, 14.186679152, 15.080837789, 16], False, 3, [1, 1, 1, 1, 1, 1, 1, 1, 1, 1, 1, 1, 1, 1, 1, 1, 1, 1, 1], False),  # 22
    Part.BSplineCurve([Vector(6.987179, -3.480168, 0), Vector(6.988543, -3.448737, 0), Vector(6.991247, -3.386379, 0), Vector(7.012704, -3.294216, 0), Vector(7.04714, -3.204995, 0), Vector(7.095165, -3.119443, 0), Vector(7.154632, -3.039493, 0), Vector(7.227759, -2.969804, 0), Vector(7.31, -2.907883, 0), Vector(7.404138, -2.857802, 0), Vector(7.506966, -2.817807, 0), Vector(7.618458, -2.790251, 0), Vector(7.737013, -2.77201, 0), Vector(7.818872, -2.770172, 0), Vector(7.860777, -2.769231, 0)], [4, 1, 1, 1, 1, 1, 1, 1, 1, 1, 1, 1, 4], [0, 0.898778495, 1.783155532, 2.693654817, 3.627872908, 4.583023416, 5.533784346, 6.509005473, 7.520592997, 8.575161974, 9.658835044, 10.801527049, 12], False, 3, [1, 1, 1, 1, 1, 1, 1, 1, 1, 1, 1, 1, 1, 1, 1], False),  # 23
    Part.BSplineCurve([Vector(7.88111, -4.25, 0), Vector(7.849984, -4.249446, 0), Vector(7.788923, -4.24836, 0), Vector(7.699466, -4.236271, 0), Vector(7.613613, -4.219441, 0), Vector(7.531653, -4.193911, 0), Vector(7.453621, -4.160714, 0), Vector(7.379094, -4.120779, 0), Vector(7.308643, -4.073574, 0), Vector(7.24324, -4.019697, 0), Vector(7.183517, -3.961638, 0), Vector(7.131118, -3.900176, 0), Vector(7.086621, -3.836453, 0), Vector(7.050788, -3.769661, 0), Vector(7.021376, -3.701213, 0), Vector(7.002062, -3.629406, 0), Vector(6.98968, -3.555619, 0), Vector(6.988018, -3.505459, 0), Vector(6.987179, -3.480168, 0)], [4, 1, 1, 1, 1, 1, 1, 1, 1, 1, 1, 1, 1, 1, 1, 1, 4], [0, 1.140299081, 2.23698856, 3.303958914, 4.344563908, 5.37730929, 6.408454204, 7.439741482, 8.480804886, 9.510774543, 10.48932336, 11.43758569, 12.353841022, 13.263987381, 14.161954604, 15.073269652, 16], False, 3, [1, 1, 1, 1, 1, 1, 1, 1, 1, 1, 1, 1, 1, 1, 1, 1, 1, 1, 1], False),  # 24
    Part.BSplineCurve([Vector(8.557692, -5.19371, 0), Vector(8.55716, -5.210338, 0), Vector(8.556105, -5.243342, 0), Vector(8.547405, -5.292081, 0), Vector(8.533029, -5.33971, 0), Vector(8.513566, -5.386624, 0), Vector(8.487956, -5.432165, 0), Vector(8.457592, -5.477048, 0), Vector(8.420707, -5.520264, 0), Vector(8.379311, -5.56282, 0), Vector(8.332365, -5.602204, 0), Vector(8.279961, -5.636838, 0), Vector(8.222368, -5.666251, 0), Vector(8.159583, -5.690139, 0), Vector(8.091838, -5.708082, 0), Vector(8.019445, -5.721518, 0), Vector(7.941801, -5.729091, 0), Vector(7.888371, -5.730198, 0), Vector(7.860777, -5.730769, 0)], [4, 1, 1, 1, 1, 1, 1, 1, 1, 1, 1, 1, 1, 1, 1, 1, 4], [0, 0.814439003, 1.616544685, 2.417341072, 3.248991801, 4.09997495, 4.973547432, 5.9003056, 6.880240646, 7.880314356, 8.896779544, 9.951930927, 11.043077905, 12.18215768, 13.381699519, 14.647792085, 16], False, 3, [1, 1, 1, 1, 1, 1, 1, 1, 1, 1, 1, 1, 1, 1, 1, 1, 1, 1, 1], False),  # 25
    Part.BSplineCurve([Vector(7.873397, -4.608974, 0), Vector(7.903148, -4.609847, 0), Vector(7.962354, -4.611584, 0), Vector(8.049633, -4.627736, 0), Vector(8.134496, -4.653141, 0), Vector(8.216035, -4.687901, 0), Vector(8.292139, -4.731529, 0), Vector(8.359979, -4.783762, 0), Vector(8.418976, -4.843394, 0), Vector(8.468517, -4.909497, 0), Vector(8.506927, -4.979849, 0), Vector(8.536829, -5.050449, 0), Vector(8.55429, -5.122051, 0), Vector(8.556567, -5.170018, 0), Vector(8.557692, -5.19371, 0)], [4, 1, 1, 1, 1, 1, 1, 1, 1, 1, 1, 1, 4], [0, 1.076279235, 2.141928126, 3.20205304, 4.278698113, 5.344010996, 6.36967002, 7.368914609, 8.37248503, 9.349703398, 10.264243087, 11.142681841, 12], False, 3, [1, 1, 1, 1, 1, 1, 1, 1, 1, 1, 1, 1, 1, 1, 1], False),  # 26
    Part.BSplineCurve([Vector(7.166667, -5.186699, 0), Vector(7.167354, -5.168418, 0), Vector(7.168712, -5.132293, 0), Vector(7.179217, -5.078947, 0), Vector(7.194874, -5.026526, 0), Vector(7.219525, -4.976275, 0), Vector(7.249091, -4.926452, 0), Vector(7.285583, -4.878301, 0), Vector(7.329072, -4.831656, 0), Vector(7.378099, -4.786912, 0), Vector(7.431511, -4.745013, 0), Vector(7.488095, -4.70864, 0), Vector(7.547141, -4.678206, 0), Vector(7.608043, -4.652877, 0), Vector(7.671422, -4.633187, 0), Vector(7.736888, -4.619218, 0), Vector(7.804454, -4.610536, 0), Vector(7.850234, -4.609499, 0), Vector(7.873397, -4.608974, 0)], [4, 1, 1, 1, 1, 1, 1, 1, 1, 1, 1, 1, 1, 1, 1, 1, 4], [0, 0.873023192, 1.725219244, 2.590779336, 3.480155217, 4.391973325, 5.357036234, 6.360879153, 7.436073238, 8.526419356, 9.601555421, 10.645666583, 11.697338044, 12.750135903, 13.812665442, 14.89329948, 16], False, 3, [1, 1, 1, 1, 1, 1, 1, 1, 1, 1, 1, 1, 1, 1, 1, 1, 1, 1, 1], False),  # 27
    Part.BSplineCurve([Vector(7.860777, -5.730769, 0), Vector(7.836226, -5.730118, 0), Vector(7.788194, -5.728843, 0), Vector(7.717766, -5.722185, 0), Vector(7.650793, -5.709231, 0), Vector(7.586577, -5.691993, 0), Vector(7.525999, -5.668705, 0), Vector(7.468234, -5.64131, 0), Vector(7.414267, -5.608004, 0), Vector(7.363446, -5.570642, 0), Vector(7.317695, -5.52955, 0), Vector(7.27709, -5.486736, 0), Vector(7.243362, -5.44136, 0), Vector(7.214721, -5.394552, 0), Vector(7.19394, -5.344922, 0), Vector(7.178375, -5.29399, 0), Vector(7.167854, -5.241115, 0), Vector(7.167065, -5.204978, 0), Vector(7.166667, -5.186699, 0)], [4, 1, 1, 1, 1, 1, 1, 1, 1, 1, 1, 1, 1, 1, 1, 1, 4], [0, 1.203892937, 2.355340988, 3.463153438, 4.544400666, 5.610487187, 6.640501085, 7.674077295, 8.714426146, 9.728707835, 10.68524104, 11.601827946, 12.495867327, 13.368432065, 14.231010473, 15.105153427, 16], False, 3, [1, 1, 1, 1, 1, 1, 1, 1, 1, 1, 1, 1, 1, 1, 1, 1, 1, 1, 1], False),  # 28
], False)
sketch4.addConstraint([
    Sketcher.Constraint("Block", 1),
    Sketcher.Constraint("Block", 2),
    Sketcher.Constraint("Block", 3),
    Sketcher.Constraint("Block", 9),
    Sketcher.Constraint("Block", 10),
    Sketcher.Constraint("Block", 11),
    Sketcher.Constraint("Block", 12),
    Sketcher.Constraint("Block", 13),
    Sketcher.Constraint("Block", 14),
    Sketcher.Constraint("Block", 15),
    Sketcher.Constraint("Block", 16),
    Sketcher.Constraint("Block", 17),
    Sketcher.Constraint("Block", 18),
    Sketcher.Constraint("Block", 19),
    Sketcher.Constraint("Block", 20),
    Sketcher.Constraint("Block", 21),
    Sketcher.Constraint("Block", 22),
    Sketcher.Constraint("Block", 23),
    Sketcher.Constraint("Block", 24),
    Sketcher.Constraint("Block", 25),
    Sketcher.Constraint("Block", 26),
    Sketcher.Constraint("Block", 27),
    Sketcher.Constraint("Block", 28),
    Sketcher.Constraint("Coincident", 0, 2, 1, 2),
    Sketcher.Constraint("Coincident", 3, 1, 4, 1),
    Sketcher.Constraint("Coincident", 4, 2, 5, 1),
    Sketcher.Constraint("Coincident", 5, 2, 6, 1),
    Sketcher.Constraint("Coincident", 6, 2, 7, 1),
    Sketcher.Constraint("Coincident", 7, 2, 8, 1),
    Sketcher.Constraint("Coincident", 8, 2, 9, 2),
    Sketcher.Constraint("Coincident", 11, 1, 0, 1),
    Sketcher.Constraint("Horizontal", 5),
    Sketcher.Constraint("Vertical", 6),
    Sketcher.Constraint("Horizontal", 7),
    Sketcher.Constraint("DistanceY", 4, 2, -1, 1, Q("2.5 mm")),
    Sketcher.Constraint("DistanceX", 4, 2, 7, 2, Q("0.749499 mm")),
    Sketcher.Constraint("DistanceX", 7, 2, 8, 2, Q("0.875701 mm")),
    Sketcher.Constraint("Distance", 8, Q("1.28075 mm")),
    Sketcher.Constraint("DistanceX", 5, 1, 5, 2, Q("2.378205 mm")),
])
pocket3 = body.newObject("PartDesign::Pocket", "Pocket002")
pocket3.Profile = sketch4
pocket3.Length = 2.8
pocket3.Reversed = True

doc.recompute()
